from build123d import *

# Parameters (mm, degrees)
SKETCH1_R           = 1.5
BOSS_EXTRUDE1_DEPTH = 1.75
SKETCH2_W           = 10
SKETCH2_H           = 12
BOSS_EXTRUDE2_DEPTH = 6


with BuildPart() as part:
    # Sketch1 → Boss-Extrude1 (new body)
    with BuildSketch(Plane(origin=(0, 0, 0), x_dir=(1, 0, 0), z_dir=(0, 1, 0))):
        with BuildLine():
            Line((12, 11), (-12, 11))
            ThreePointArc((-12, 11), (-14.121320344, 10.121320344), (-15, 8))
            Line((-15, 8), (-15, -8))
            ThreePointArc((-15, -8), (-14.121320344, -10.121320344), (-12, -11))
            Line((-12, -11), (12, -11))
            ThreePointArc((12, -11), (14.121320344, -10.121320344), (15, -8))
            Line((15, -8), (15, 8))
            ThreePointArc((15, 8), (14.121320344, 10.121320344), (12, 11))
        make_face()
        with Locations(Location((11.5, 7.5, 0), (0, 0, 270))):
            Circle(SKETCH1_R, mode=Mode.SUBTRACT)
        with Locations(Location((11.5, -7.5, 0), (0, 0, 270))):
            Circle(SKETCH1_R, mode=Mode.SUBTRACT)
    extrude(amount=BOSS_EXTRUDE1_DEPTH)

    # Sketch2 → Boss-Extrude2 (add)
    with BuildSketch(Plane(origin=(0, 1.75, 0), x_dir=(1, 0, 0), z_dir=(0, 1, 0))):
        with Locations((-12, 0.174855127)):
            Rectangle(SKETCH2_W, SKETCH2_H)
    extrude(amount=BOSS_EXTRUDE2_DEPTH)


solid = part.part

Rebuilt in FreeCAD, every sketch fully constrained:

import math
import FreeCAD as App
import Part
import Sketcher
from FreeCAD import Vector
Q = App.Units.Quantity

doc = App.newDocument("Part")
body = doc.addObject("PartDesign::Body", "Body")

# Sketch on XZ plane
sketch1 = body.newObject("Sketcher::SketchObject", "Sketch")
sketch1.AttachmentSupport = (doc.getObject("XZ_Plane"), [""])
sketch1.MapMode = "FlatFace"
sketch1.addGeometry([
    Part.LineSegment(Vector(12, -11, 0), Vector(-12, -11, 0)),  # 0
    Part.ArcOfCircle(Part.Circle(Vector(-12, -8, 0), Vector(0, 0, 1), 3), math.radians(180), math.radians(270)),  # 1
    Part.LineSegment(Vector(-15, -8, 0), Vector(-15, 8, 0)),  # 2
    Part.ArcOfCircle(Part.Circle(Vector(-12, 8, 0), Vector(0, 0, 1), 3), math.radians(90), math.radians(180)),  # 3
    Part.LineSegment(Vector(-12, 11, 0), Vector(12, 11, 0)),  # 4
    Part.ArcOfCircle(Part.Circle(Vector(12, 8, 0), Vector(0, 0, 1), 3), math.radians(0), math.radians(90)),  # 5
    Part.LineSegment(Vector(15, 8, 0), Vector(15, -8, 0)),  # 6
    Part.ArcOfCircle(Part.Circle(Vector(12, -8, 0), Vector(0, 0, 1), 3), math.radians(-90), math.radians(0)),  # 7
    Part.Circle(Vector(11.5, 7.5, 0), Vector(0, 0, 1), 1.5),  # 8
    Part.Circle(Vector(11.5, -7.5, 0), Vector(0, 0, 1), 1.5),  # 9
], False)
sketch1.addConstraint([
    Sketcher.Constraint("Tangent", 0, 2, 1, 2),
    Sketcher.Constraint("Tangent", 1, 1, 2, 1),
    Sketcher.Constraint("Tangent", 2, 2, 3, 2),
    Sketcher.Constraint("Tangent", 3, 1, 4, 1),
    Sketcher.Constraint("Tangent", 4, 2, 5, 2),
    Sketcher.Constraint("Tangent", 5, 1, 6, 1),
    Sketcher.Constraint("Tangent", 6, 2, 7, 2),
    Sketcher.Constraint("Tangent", 7, 1, 0, 1),
    Sketcher.Constraint("Horizontal", 0),
    Sketcher.Constraint("Vertical", 2),
    Sketcher.Constraint("Horizontal", 4),
    Sketcher.Constraint("Vertical", 6),
    Sketcher.Constraint("Equal", 1, 3),
    Sketcher.Constraint("Equal", 3, 5),
    Sketcher.Constraint("Equal", 5, 7),
    Sketcher.Constraint("Equal", 8, 9),
    Sketcher.Constraint("Symmetric", 1, 3, 5, 3, -1, 1),
    Sketcher.Constraint("Symmetric", 8, 3, 9, 3, -1),
    Sketcher.Constraint("Diameter", 8, Q("3 mm")),
    Sketcher.Constraint("Radius", 1, Q("3 mm")),
    Sketcher.Constraint("DistanceX", 0, 2, 0, 1, Q("24 mm")),
    Sketcher.Constraint("DistanceY", 2, 1, 2, 2, Q("16 mm")),
    Sketcher.Constraint("DistanceY", 9, 3, 8, 3, Q("15 mm")),
    Sketcher.Constraint("DistanceX", -1, 1, 8, 3, Q("11.5 mm")),
])
pad1 = body.newObject("PartDesign::Pad", "Pad")
pad1.Profile = sketch1
pad1.Length = 1.75
pad1.Reversed = True

# Sketch on XZ plane
sketch2 = body.newObject("Sketcher::SketchObject", "Sketch001")
sketch2.AttachmentSupport = (doc.getObject("XZ_Plane"), [""])
sketch2.MapMode = "FlatFace"
sketch2.AttachmentOffset = App.Placement(Vector(0, 0, -1.75), App.Rotation())
sketch2.addGeometry([
    Part.LineSegment(Vector(-17, -6, 0), Vector(-17, 6, 0)),
    Part.LineSegment(Vector(-17, 6, 0), Vector(-7, 6, 0)),
    Part.LineSegment(Vector(-7, 6, 0), Vector(-7, -6, 0)),
    Part.LineSegment(Vector(-7, -6, 0), Vector(-17, -6, 0)),
], False)
sketch2.addConstraint([
    Sketcher.Constraint("Coincident", 0, 2, 1, 1),
    Sketcher.Constraint("Coincident", 1, 2, 2, 1),
    Sketcher.Constraint("Coincident", 2, 2, 3, 1),
    Sketcher.Constraint("Coincident", 3, 2, 0, 1),
    Sketcher.Constraint("Vertical", 0),
    Sketcher.Constraint("Horizontal", 1),
    Sketcher.Constraint("Vertical", 2),
    Sketcher.Constraint("Horizontal", 3),
    Sketcher.Constraint("DistanceX", 1, 1, 1, 2, Q("10 mm")),
    Sketcher.Constraint("DistanceY", 0, 1, 0, 2, Q("12 mm")),
    Sketcher.Constraint("DistanceX", 0, 2, -1, 1, Q("17 mm")),
    Sketcher.Constraint("DistanceY", -1, 1, 0, 2, Q("5.825145 mm")),
])
pad2 = body.newObject("PartDesign::Pad", "Pad001")
pad2.Profile = sketch2
pad2.Length = 6
pad2.Reversed = True

doc.recompute()
